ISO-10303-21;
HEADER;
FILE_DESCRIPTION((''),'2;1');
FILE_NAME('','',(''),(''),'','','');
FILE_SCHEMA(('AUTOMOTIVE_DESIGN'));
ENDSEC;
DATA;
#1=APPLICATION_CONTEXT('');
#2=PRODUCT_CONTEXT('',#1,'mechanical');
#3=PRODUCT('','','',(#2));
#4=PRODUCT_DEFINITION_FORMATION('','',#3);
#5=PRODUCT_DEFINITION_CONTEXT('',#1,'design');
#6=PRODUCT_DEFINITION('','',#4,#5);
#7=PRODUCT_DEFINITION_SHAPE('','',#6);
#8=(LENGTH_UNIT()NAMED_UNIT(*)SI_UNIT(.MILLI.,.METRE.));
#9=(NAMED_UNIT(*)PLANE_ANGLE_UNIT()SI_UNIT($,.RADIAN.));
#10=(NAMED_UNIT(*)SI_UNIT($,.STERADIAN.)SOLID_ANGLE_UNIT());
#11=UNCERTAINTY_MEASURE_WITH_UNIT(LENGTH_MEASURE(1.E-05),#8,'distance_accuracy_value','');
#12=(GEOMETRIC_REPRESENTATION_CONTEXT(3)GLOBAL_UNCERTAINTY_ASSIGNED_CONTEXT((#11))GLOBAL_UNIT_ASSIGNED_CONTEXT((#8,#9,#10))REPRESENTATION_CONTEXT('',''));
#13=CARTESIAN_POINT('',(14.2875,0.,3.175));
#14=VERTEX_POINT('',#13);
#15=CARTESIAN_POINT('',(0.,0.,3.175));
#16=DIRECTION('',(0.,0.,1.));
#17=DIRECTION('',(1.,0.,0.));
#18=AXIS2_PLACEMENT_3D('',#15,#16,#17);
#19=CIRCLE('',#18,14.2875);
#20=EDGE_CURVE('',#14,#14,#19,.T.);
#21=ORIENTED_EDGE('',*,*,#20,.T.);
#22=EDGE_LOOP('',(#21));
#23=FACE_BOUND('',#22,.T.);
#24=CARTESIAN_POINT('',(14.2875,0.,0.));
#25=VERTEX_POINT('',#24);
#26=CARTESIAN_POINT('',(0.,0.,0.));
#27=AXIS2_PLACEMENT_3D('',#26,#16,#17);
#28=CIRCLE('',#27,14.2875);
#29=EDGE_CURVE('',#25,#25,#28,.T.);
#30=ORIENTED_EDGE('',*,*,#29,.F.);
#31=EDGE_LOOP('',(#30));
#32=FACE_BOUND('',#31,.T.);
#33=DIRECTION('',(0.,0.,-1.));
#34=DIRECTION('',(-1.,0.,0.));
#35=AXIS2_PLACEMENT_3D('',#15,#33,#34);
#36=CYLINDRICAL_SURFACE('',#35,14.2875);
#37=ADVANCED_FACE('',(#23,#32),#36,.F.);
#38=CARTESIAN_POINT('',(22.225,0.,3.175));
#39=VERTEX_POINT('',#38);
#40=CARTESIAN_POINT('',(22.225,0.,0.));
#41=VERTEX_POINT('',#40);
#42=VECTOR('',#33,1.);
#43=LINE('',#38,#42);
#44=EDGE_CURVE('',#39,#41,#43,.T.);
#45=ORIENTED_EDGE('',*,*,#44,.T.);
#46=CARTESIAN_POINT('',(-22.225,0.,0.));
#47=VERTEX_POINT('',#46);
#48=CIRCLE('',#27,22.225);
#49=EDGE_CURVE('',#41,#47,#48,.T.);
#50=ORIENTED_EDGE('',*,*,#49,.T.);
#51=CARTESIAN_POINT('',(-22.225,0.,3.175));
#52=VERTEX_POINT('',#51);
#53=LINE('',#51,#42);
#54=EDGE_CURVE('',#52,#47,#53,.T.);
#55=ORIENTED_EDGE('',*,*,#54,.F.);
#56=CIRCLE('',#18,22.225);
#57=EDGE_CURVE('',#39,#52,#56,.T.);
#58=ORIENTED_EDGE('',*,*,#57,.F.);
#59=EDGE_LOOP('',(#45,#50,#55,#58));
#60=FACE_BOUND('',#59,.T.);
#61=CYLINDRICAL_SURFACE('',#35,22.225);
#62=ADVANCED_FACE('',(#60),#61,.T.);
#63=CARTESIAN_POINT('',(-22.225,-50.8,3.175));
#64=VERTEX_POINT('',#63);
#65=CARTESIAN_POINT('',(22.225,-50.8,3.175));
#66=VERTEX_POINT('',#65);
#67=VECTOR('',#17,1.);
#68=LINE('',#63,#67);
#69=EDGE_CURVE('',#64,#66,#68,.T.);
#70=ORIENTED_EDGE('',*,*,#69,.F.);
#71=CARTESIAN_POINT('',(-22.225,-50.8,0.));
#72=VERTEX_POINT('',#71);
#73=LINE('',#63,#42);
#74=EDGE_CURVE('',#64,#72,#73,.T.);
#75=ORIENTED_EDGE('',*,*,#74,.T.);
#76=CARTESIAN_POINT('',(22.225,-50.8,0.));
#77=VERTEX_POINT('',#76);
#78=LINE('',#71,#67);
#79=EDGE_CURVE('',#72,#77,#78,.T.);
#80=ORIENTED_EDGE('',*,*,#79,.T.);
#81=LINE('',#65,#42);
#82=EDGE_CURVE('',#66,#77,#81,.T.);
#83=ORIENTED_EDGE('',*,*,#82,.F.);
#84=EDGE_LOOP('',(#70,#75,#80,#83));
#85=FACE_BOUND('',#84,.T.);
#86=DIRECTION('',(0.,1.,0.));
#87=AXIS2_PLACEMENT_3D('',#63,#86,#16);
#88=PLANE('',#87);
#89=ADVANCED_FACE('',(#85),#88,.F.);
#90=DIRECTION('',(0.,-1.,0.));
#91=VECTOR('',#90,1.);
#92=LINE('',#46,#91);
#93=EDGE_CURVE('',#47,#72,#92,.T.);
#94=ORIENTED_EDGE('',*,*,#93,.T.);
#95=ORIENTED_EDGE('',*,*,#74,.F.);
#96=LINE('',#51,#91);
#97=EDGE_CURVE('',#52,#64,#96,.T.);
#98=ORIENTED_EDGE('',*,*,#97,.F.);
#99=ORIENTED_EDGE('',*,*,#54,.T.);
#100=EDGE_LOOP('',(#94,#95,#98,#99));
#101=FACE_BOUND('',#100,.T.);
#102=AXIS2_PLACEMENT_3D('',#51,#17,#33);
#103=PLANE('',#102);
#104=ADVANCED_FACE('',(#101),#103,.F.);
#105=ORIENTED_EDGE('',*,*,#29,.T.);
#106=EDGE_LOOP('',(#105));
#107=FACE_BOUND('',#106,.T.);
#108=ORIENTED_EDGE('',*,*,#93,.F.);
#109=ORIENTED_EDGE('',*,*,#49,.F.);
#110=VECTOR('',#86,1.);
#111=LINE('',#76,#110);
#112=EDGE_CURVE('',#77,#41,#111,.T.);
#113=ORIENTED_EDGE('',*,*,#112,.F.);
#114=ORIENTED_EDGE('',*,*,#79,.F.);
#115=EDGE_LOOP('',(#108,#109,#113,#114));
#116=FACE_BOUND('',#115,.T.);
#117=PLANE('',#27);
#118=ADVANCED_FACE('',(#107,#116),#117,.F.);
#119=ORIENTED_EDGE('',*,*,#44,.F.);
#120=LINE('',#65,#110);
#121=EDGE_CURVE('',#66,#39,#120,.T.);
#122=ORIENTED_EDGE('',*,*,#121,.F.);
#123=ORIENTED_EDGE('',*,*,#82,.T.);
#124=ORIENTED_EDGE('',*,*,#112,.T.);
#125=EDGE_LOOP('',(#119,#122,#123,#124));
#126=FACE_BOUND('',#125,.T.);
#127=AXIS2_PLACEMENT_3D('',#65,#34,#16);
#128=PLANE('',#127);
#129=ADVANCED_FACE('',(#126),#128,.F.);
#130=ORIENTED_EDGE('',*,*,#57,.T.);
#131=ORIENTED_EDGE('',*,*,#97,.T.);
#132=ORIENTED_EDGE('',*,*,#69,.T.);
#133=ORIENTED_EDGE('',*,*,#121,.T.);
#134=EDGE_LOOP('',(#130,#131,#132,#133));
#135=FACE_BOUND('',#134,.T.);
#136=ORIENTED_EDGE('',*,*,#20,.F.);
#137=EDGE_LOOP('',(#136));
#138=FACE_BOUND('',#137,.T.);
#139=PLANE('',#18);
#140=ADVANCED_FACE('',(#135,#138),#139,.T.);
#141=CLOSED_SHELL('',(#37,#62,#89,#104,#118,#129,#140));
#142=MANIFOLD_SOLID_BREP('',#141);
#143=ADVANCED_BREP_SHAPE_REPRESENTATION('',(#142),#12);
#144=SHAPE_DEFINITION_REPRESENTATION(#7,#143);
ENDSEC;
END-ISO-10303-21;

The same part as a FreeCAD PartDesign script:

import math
import FreeCAD as App
import Part
import Sketcher
Q = App.Units.Quantity

doc = App.newDocument("Part")
body = doc.addObject("PartDesign::Body", "Body")

sketch1 = doc.addObject("Sketcher::SketchObject", "Sketch")
body.addObject(sketch1)
sketch1.AttachmentSupport = (doc.XY_Plane, [""])
sketch1.MapMode = "FlatFace"
sketch1.addGeometry([
    Part.LineSegment(App.Vector(-22, 0, 0), App.Vector(-22, -51, 0)),
    Part.LineSegment(App.Vector(-22, -51, 0), App.Vector(22, -51, 0)),
    Part.LineSegment(App.Vector(22, -51, 0), App.Vector(22, 0, 0)),
    Part.ArcOfCircle(Part.Circle(App.Vector(0, 0, 0), App.Vector(0, 0, 1), 22), math.radians(0), math.radians(180)),
    Part.Circle(App.Vector(0, 0, 0), App.Vector(0, 0, 1), 14),
], False)
sketch1.addConstraint([
    Sketcher.Constraint("Coincident", 0, 2, 1, 1),
    Sketcher.Constraint("Coincident", 1, 2, 2, 1),
    Sketcher.Constraint("Tangent", 2, 2, 3, 1),
    Sketcher.Constraint("Tangent", 3, 2, 0, 1),
    Sketcher.Constraint("Vertical", 0),
    Sketcher.Constraint("Horizontal", 1),
    Sketcher.Constraint("Vertical", 2),
    Sketcher.Constraint("Coincident", 3, 3, -1, 1),
    Sketcher.Constraint("Coincident", 4, 3, -1, 1),
    Sketcher.Constraint("DistanceY", 0, 2, 0, 1, Q("2 in")),
    Sketcher.Constraint("Diameter", 4, Q("1.125 in")),
    Sketcher.Constraint("Radius", 3, Q("0.875 in")),
])
pad1 = doc.addObject("PartDesign::Pad", "Pad")
body.addObject(pad1)
pad1.Profile = sketch1
pad1.Length = Q("0.125 in")

doc.recompute()
